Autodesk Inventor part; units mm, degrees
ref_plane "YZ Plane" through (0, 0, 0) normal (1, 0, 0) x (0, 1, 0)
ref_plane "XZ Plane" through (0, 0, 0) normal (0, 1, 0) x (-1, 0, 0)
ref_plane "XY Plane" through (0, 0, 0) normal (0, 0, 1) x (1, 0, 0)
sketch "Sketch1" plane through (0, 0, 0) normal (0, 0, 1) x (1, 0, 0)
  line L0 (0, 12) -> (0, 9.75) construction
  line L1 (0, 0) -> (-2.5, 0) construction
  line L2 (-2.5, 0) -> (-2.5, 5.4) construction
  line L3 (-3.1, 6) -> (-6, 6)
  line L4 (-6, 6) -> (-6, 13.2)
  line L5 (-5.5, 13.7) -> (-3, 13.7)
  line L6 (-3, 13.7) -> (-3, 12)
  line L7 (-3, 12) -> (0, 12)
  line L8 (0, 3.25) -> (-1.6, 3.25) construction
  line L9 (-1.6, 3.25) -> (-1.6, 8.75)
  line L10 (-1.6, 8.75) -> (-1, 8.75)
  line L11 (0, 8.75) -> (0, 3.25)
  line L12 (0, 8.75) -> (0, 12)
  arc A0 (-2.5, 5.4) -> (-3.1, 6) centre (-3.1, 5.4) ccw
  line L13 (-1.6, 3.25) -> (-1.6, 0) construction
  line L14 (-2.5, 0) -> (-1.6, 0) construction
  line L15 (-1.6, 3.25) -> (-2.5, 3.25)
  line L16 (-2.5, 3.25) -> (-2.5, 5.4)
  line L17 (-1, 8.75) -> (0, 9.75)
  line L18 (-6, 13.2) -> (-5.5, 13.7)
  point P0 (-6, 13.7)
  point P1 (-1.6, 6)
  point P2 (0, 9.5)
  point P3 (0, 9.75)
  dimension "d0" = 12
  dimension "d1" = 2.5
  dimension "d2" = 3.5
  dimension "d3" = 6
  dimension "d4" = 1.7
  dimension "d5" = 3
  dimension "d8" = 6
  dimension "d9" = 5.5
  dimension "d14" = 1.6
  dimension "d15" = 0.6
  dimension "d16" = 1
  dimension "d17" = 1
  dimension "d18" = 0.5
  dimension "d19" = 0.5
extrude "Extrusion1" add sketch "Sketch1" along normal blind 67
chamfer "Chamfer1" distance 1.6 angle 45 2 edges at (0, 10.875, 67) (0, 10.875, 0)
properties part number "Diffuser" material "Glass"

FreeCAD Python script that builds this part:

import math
import FreeCAD as App
import Part
import Sketcher
Q = App.Units.Quantity


def edges_at(feature, points):
    """Names of the edges that pass closest to the given points."""
    edges = feature.Shape.Edges
    near = lambda p: min(range(len(edges)), key=lambda i: edges[i].distToShape(Part.Vertex(*p))[0])
    return sorted({f"Edge{near(p) + 1}" for p in points})

doc = App.newDocument("Part")
body = doc.addObject("PartDesign::Body", "Body")

# Sketch on XY plane
sketch1 = body.newObject("Sketcher::SketchObject", "Sketch")
sketch1.AttachmentSupport = (doc.getObject("XY_Plane"), [""])
sketch1.MapMode = "FlatFace"
sketch1.addGeometry([
    Part.LineSegment(App.Vector(-6, 6, 0), App.Vector(-3.1, 6, 0)),  # 0
    Part.ArcOfCircle(Part.Circle(App.Vector(-3.1, 5.4, 0), App.Vector(0, 0, 1), 0.6), math.radians(0), math.radians(90)),  # 1
    Part.LineSegment(App.Vector(-2.5, 5.4, 0), App.Vector(-2.5, 3.2, 0)),  # 2
    Part.LineSegment(App.Vector(-2.5, 3.2, 0), App.Vector(-1.6, 3.2, 0)),  # 3
    Part.LineSegment(App.Vector(-1.6, 3.2, 0), App.Vector(-1.6, 8.8, 0)),  # 4
    Part.LineSegment(App.Vector(-1.6, 8.8, 0), App.Vector(-1, 8.8, 0)),  # 5
    Part.LineSegment(App.Vector(-1, 8.8, 0), App.Vector(0, 9.8, 0)),  # 6
    Part.LineSegment(App.Vector(0, 9.8, 0), App.Vector(0, 12, 0)),  # 7
    Part.LineSegment(App.Vector(0, 12, 0), App.Vector(-3, 12, 0)),  # 8
    Part.LineSegment(App.Vector(-3, 12, 0), App.Vector(-3, 13.7, 0)),  # 9
    Part.LineSegment(App.Vector(-3, 13.7, 0), App.Vector(-5.5, 13.7, 0)),  # 10
    Part.LineSegment(App.Vector(-5.5, 13.7, 0), App.Vector(-6, 13.2, 0)),  # 11
    Part.LineSegment(App.Vector(-6, 13.2, 0), App.Vector(-6, 6, 0)),  # 12
], False)
sketch1.addConstraint([
    Sketcher.Constraint("Tangent", 0, 2, 1, 2),
    Sketcher.Constraint("Tangent", 1, 1, 2, 1),
    Sketcher.Constraint("Coincident", 2, 2, 3, 1),
    Sketcher.Constraint("Coincident", 3, 2, 4, 1),
    Sketcher.Constraint("Coincident", 4, 2, 5, 1),
    Sketcher.Constraint("Coincident", 5, 2, 6, 1),
    Sketcher.Constraint("Coincident", 6, 2, 7, 1),
    Sketcher.Constraint("Coincident", 7, 2, 8, 1),
    Sketcher.Constraint("Coincident", 8, 2, 9, 1),
    Sketcher.Constraint("Coincident", 9, 2, 10, 1),
    Sketcher.Constraint("Coincident", 10, 2, 11, 1),
    Sketcher.Constraint("Coincident", 11, 2, 12, 1),
    Sketcher.Constraint("Coincident", 12, 2, 0, 1),
    Sketcher.Constraint("Horizontal", 0),
    Sketcher.Constraint("Vertical", 2),
    Sketcher.Constraint("Horizontal", 3),
    Sketcher.Constraint("Vertical", 4),
    Sketcher.Constraint("Horizontal", 5),
    Sketcher.Constraint("Vertical", 7),
    Sketcher.Constraint("Horizontal", 8),
    Sketcher.Constraint("Vertical", 9),
    Sketcher.Constraint("Horizontal", 10),
    Sketcher.Constraint("Vertical", 12),
    Sketcher.Constraint("PointOnObject", 6, 2, -2),
    Sketcher.Constraint("Parallel", 6, 11),
    Sketcher.Constraint("Radius", 1, Q("0.6 mm")),
    Sketcher.Constraint("DistanceX", 8, 2, 8, 1, Q("3 mm")),
    Sketcher.Constraint("DistanceX", 5, 1, 5, 2, Q("0.6 mm")),
    Sketcher.Constraint("DistanceX", 10, 2, 10, 1, Q("2.5 mm")),
    Sketcher.Constraint("DistanceY", 4, 1, 4, 2, Q("5.5 mm")),
    Sketcher.Constraint("DistanceY", 9, 1, 9, 2, Q("1.7 mm")),
    Sketcher.Constraint("DistanceY", -1, 1, 0, 2, Q("6 mm")),
    Sketcher.Constraint("DistanceX", 5, 2, -1, 1, Q("1 mm")),
    Sketcher.Constraint("DistanceY", -1, 1, 7, 2, Q("12 mm")),
    Sketcher.Constraint("DistanceX", 11, 2, -1, 1, Q("6 mm")),
    Sketcher.Constraint("DistanceY", 5, 2, 6, 2, Q("1 mm")),
    Sketcher.Constraint("DistanceX", 1, 1, -1, 1, Q("2.5 mm")),
    Sketcher.Constraint("DistanceY", 2, 2, 2, 1, Q("2.15 mm")),
])
pad1 = body.newObject("PartDesign::Pad", "Pad")
pad1.Profile = sketch1
pad1.Length = 67
doc.recompute()

chamfer = body.newObject("PartDesign::Chamfer", "Chamfer")
chamfer.Base = (pad1, edges_at(pad1, [(0, 10.875, 67), (0, 10.875, 0)]))
chamfer.Size = 1.6

doc.recompute()
